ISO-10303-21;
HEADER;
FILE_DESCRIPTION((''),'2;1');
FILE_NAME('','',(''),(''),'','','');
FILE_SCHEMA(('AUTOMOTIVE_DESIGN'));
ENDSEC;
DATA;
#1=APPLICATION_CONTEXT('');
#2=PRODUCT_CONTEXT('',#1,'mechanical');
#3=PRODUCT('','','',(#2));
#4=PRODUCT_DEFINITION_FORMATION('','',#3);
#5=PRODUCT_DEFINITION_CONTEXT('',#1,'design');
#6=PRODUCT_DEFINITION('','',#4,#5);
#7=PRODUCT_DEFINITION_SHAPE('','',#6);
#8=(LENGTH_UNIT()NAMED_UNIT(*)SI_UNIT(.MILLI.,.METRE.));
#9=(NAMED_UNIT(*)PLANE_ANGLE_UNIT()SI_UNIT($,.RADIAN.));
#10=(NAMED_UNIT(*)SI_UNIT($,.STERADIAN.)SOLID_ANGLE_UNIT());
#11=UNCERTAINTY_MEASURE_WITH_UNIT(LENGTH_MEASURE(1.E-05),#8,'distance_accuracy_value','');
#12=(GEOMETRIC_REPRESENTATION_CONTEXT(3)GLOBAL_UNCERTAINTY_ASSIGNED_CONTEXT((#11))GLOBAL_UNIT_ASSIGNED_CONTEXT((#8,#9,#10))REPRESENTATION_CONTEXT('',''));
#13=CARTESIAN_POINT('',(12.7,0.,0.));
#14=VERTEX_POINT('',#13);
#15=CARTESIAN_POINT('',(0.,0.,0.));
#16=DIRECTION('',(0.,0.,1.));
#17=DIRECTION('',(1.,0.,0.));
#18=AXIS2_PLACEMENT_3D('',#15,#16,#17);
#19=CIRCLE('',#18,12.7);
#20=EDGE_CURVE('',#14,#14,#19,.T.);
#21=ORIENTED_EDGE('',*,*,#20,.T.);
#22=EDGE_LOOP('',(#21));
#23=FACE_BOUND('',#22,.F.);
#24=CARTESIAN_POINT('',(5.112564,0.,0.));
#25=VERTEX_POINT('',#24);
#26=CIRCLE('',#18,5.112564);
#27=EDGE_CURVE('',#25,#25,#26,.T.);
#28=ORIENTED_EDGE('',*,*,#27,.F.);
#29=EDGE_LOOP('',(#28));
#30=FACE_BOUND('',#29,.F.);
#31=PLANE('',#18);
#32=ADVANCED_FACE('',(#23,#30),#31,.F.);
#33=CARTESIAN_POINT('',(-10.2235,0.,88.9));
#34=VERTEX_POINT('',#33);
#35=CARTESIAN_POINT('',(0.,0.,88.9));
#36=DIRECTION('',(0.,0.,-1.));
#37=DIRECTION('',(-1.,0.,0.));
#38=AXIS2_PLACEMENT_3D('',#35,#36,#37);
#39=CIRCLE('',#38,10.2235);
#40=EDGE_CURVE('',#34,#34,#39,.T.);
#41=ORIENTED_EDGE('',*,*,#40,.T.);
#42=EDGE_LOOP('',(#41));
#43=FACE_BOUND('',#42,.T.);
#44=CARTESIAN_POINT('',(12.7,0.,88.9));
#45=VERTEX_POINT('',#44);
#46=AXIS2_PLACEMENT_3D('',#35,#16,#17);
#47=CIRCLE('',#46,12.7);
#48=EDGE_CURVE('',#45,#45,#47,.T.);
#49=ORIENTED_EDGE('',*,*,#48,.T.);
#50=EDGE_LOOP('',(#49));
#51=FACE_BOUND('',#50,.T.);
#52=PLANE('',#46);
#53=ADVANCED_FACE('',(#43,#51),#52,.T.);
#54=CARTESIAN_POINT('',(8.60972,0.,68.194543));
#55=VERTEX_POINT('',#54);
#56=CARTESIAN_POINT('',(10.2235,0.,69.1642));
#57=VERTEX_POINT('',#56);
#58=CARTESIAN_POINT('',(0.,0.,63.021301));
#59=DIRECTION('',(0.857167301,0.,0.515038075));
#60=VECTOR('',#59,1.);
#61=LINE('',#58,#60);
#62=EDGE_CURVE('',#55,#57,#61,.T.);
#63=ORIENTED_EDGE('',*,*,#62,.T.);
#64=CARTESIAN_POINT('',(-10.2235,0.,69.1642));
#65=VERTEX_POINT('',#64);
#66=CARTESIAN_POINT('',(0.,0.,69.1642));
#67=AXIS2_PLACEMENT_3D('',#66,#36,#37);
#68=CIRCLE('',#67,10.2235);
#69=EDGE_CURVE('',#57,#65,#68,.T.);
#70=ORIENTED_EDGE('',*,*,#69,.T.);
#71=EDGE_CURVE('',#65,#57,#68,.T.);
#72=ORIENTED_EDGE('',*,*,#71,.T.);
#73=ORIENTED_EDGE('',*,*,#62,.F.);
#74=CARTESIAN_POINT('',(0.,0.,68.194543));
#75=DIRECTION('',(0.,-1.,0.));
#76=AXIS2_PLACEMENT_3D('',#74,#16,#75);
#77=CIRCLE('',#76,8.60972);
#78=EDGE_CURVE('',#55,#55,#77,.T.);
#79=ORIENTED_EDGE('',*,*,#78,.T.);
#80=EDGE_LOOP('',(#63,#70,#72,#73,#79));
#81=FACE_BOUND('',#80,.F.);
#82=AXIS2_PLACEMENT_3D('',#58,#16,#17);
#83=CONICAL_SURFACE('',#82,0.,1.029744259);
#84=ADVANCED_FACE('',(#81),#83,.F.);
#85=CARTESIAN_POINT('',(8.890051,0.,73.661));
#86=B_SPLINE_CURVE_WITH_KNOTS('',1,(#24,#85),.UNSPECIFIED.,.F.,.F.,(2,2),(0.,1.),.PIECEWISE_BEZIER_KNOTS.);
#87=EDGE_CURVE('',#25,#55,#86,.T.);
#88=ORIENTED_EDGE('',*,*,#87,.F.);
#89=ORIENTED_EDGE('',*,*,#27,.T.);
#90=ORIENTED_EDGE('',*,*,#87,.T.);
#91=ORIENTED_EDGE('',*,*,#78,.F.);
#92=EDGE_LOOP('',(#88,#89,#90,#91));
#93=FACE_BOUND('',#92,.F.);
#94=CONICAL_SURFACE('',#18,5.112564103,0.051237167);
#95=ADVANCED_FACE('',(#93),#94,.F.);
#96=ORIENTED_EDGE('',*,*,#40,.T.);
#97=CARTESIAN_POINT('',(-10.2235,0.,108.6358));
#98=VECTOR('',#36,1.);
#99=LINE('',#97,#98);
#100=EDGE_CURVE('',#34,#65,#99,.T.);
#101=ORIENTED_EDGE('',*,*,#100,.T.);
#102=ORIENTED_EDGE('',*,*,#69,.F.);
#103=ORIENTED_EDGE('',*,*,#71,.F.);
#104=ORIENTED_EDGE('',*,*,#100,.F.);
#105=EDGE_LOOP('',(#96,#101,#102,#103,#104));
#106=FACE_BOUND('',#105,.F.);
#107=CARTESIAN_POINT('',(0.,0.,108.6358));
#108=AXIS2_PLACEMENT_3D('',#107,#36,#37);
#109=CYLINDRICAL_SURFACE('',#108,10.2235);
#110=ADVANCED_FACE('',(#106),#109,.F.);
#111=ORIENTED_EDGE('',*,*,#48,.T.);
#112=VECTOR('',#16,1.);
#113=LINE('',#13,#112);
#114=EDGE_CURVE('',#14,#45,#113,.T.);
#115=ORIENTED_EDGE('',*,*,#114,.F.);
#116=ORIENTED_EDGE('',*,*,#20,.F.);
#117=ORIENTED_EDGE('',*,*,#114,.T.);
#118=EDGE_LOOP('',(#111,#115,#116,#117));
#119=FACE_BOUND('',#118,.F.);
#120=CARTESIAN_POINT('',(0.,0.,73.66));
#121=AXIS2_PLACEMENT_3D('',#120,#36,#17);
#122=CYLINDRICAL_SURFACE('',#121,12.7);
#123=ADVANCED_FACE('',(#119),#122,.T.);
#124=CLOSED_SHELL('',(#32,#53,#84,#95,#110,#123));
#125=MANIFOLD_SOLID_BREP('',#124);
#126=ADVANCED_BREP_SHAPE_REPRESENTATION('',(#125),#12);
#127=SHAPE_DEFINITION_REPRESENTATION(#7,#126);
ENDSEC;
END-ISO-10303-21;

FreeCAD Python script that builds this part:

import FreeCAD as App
import Part
import Sketcher
from FreeCAD import Vector
Q = App.Units.Quantity

doc = App.newDocument("Part")
body = doc.addObject("PartDesign::Body", "Body")

sketch1 = doc.addObject("Sketcher::SketchObject", "Sketch")
body.addObject(sketch1)
sketch1.AttachmentSupport = (doc.XY_Plane, [""])
sketch1.MapMode = "FlatFace"
sketch1.addGeometry(Part.Circle(Vector(0, 0, 0), Vector(0, 0, 1), 12.7), False)
sketch1.addConstraint(Sketcher.Constraint("Coincident", 0, 3, -1, 1))
sketch1.addConstraint(Sketcher.Constraint("Diameter", 0, Q("1 in")))
pad1 = doc.addObject("PartDesign::Pad", "Pad")
body.addObject(pad1)
pad1.Profile = sketch1
pad1.Length = Q("2.9 in")

sketch2 = doc.addObject("Sketcher::SketchObject", "Sketch001")
body.addObject(sketch2)
sketch2.AttachmentSupport = (doc.XY_Plane, [""])
sketch2.MapMode = "FlatFace"
sketch2.addGeometry(Part.Circle(Vector(0, 0, 0), Vector(0, 0, 1), 5.112564), False)
sketch2.addConstraint(Sketcher.Constraint("Coincident", 0, 3, -1, 1))
sketch2.addConstraint(Sketcher.Constraint("Diameter", 0, Q("10.225128 mm")))
pocket1 = doc.addObject("PartDesign::Pocket", "Pocket")
body.addObject(pocket1)
pocket1.Profile = sketch2
pocket1.Length = 73.661
pocket1.Reversed = True
pocket1.TaperAngle = 2.935673

sketch3 = doc.addObject("Sketcher::SketchObject", "Sketch002")
body.addObject(sketch3)
sketch3.AttachmentSupport = (doc.XY_Plane, [""])
sketch3.MapMode = "FlatFace"
sketch3.AttachmentOffset = App.Placement(Vector(0, 0, 2.9 * 25.4), App.Rotation())
sketch3.addGeometry(Part.Circle(Vector(0, 0, 0), Vector(0, 0, 1), 12.7), False)
sketch3.addConstraint(Sketcher.Constraint("Coincident", 0, 3, -1, 1))
sketch3.addConstraint(Sketcher.Constraint("Diameter", 0, Q("1 in")))
pad2 = doc.addObject("PartDesign::Pad", "Pad001")
body.addObject(pad2)
pad2.Profile = sketch3
pad2.Length = Q("0.6 in")

sketch4 = doc.addObject("Sketcher::SketchObject", "Sketch003")
body.addObject(sketch4)
sketch4.AttachmentSupport = (doc.XY_Plane, [""])
sketch4.MapMode = "FlatFace"
sketch4.AttachmentOffset = App.Placement(Vector(0, 0, 3.5 * 25.4), App.Rotation())
sketch4.addGeometry(Part.Circle(Vector(0, 0, 0), Vector(0, 0, 1), 10.2235), False)
sketch4.addConstraint(Sketcher.Constraint("Coincident", 0, 3, -1, 1))
sketch4.addConstraint(Sketcher.Constraint("Diameter", 0, Q("0.805 in")))
doc.recompute()
hole = doc.addObject("PartDesign::Hole", "Hole")
body.addObject(hole)
hole.Profile = sketch4
hole.ThreadType = "None"
hole.Diameter = Q("0.805 in")
hole.DepthType = "Dimension"
hole.Depth = Q("0.777 in")
hole.DrillPoint = "Angled"
hole.DrillPointAngle = 118

doc.recompute()
